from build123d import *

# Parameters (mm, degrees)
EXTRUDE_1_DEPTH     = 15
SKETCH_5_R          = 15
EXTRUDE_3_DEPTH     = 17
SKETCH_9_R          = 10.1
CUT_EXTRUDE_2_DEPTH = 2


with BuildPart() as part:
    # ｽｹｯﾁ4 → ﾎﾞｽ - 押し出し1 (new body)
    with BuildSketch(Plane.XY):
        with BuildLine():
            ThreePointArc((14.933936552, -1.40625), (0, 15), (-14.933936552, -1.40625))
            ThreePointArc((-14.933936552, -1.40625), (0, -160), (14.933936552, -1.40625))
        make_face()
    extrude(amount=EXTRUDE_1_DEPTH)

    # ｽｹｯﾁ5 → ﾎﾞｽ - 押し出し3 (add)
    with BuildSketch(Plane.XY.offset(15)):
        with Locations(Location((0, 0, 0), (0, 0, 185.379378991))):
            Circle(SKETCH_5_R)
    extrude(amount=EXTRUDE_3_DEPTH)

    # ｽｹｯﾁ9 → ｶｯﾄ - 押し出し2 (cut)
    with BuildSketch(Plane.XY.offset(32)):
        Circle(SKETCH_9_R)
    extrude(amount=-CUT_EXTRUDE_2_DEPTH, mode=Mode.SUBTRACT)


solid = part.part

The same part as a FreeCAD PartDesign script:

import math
import FreeCAD as App
import Part
import Sketcher
Q = App.Units.Quantity

doc = App.newDocument("Part")
body = doc.addObject("PartDesign::Body", "Body")

# Sketch on XY plane
sketch1 = body.newObject("Sketcher::SketchObject", "Sketch")
sketch1.AttachmentSupport = (doc.getObject("XY_Plane"), [""])
sketch1.MapMode = "FlatFace"
sketch1.addGeometry(Part.ArcOfCircle(Part.Circle(App.Vector(0, 0, 0), App.Vector(0, 0, 1), 15), math.radians(-5), math.radians(185)), False)
sketch1.addGeometry(Part.ArcOfCircle(Part.Circle(App.Vector(0, -80, 0), App.Vector(0, 0, 1), 80), math.radians(101), math.radians(439)), False)
sketch1.addConstraint(Sketcher.Constraint("Coincident", 0, 1, 1, 2))
sketch1.addConstraint(Sketcher.Constraint("Coincident", 1, 1, 0, 2))
sketch1.addConstraint(Sketcher.Constraint("Coincident", 0, 3, -1, 1))
sketch1.addConstraint(Sketcher.Constraint("PointOnObject", 1, 3, -2))
sketch1.addConstraint(Sketcher.Constraint("Radius", 0, Q("15 mm")))
sketch1.addConstraint(Sketcher.Constraint("Radius", 1, Q("80 mm")))
sketch1.addConstraint(Sketcher.Constraint("DistanceY", 1, 3, -1, 1, Q("80 mm")))
pad1 = body.newObject("PartDesign::Pad", "Pad")
pad1.Profile = sketch1
pad1.Length = 15

# Sketch on XY plane
sketch2 = body.newObject("Sketcher::SketchObject", "Sketch001")
sketch2.AttachmentSupport = (doc.getObject("XY_Plane"), [""])
sketch2.MapMode = "FlatFace"
sketch2.AttachmentOffset = App.Placement(App.Vector(0, 0, 15), App.Rotation())
sketch2.addGeometry(Part.Circle(App.Vector(0, 0, 0), App.Vector(0, 0, 1), 15), False)
sketch2.addConstraint(Sketcher.Constraint("Coincident", 0, 3, -1, 1))
sketch2.addConstraint(Sketcher.Constraint("Diameter", 0, Q("30 mm")))
pad2 = body.newObject("PartDesign::Pad", "Pad001")
pad2.Profile = sketch2
pad2.Length = 17

# Sketch on XY plane
sketch3 = body.newObject("Sketcher::SketchObject", "Sketch002")
sketch3.AttachmentSupport = (doc.getObject("XY_Plane"), [""])
sketch3.MapMode = "FlatFace"
sketch3.AttachmentOffset = App.Placement(App.Vector(0, 0, 32), App.Rotation())
sketch3.addGeometry(Part.Circle(App.Vector(0, 0, 0), App.Vector(0, 0, 1), 10), False)
sketch3.addConstraint(Sketcher.Constraint("Coincident", 0, 3, -1, 1))
sketch3.addConstraint(Sketcher.Constraint("Diameter", 0, Q("20.2 mm")))
pocket1 = body.newObject("PartDesign::Pocket", "Pocket")
pocket1.Profile = sketch3
pocket1.Length = 2

doc.recompute()
